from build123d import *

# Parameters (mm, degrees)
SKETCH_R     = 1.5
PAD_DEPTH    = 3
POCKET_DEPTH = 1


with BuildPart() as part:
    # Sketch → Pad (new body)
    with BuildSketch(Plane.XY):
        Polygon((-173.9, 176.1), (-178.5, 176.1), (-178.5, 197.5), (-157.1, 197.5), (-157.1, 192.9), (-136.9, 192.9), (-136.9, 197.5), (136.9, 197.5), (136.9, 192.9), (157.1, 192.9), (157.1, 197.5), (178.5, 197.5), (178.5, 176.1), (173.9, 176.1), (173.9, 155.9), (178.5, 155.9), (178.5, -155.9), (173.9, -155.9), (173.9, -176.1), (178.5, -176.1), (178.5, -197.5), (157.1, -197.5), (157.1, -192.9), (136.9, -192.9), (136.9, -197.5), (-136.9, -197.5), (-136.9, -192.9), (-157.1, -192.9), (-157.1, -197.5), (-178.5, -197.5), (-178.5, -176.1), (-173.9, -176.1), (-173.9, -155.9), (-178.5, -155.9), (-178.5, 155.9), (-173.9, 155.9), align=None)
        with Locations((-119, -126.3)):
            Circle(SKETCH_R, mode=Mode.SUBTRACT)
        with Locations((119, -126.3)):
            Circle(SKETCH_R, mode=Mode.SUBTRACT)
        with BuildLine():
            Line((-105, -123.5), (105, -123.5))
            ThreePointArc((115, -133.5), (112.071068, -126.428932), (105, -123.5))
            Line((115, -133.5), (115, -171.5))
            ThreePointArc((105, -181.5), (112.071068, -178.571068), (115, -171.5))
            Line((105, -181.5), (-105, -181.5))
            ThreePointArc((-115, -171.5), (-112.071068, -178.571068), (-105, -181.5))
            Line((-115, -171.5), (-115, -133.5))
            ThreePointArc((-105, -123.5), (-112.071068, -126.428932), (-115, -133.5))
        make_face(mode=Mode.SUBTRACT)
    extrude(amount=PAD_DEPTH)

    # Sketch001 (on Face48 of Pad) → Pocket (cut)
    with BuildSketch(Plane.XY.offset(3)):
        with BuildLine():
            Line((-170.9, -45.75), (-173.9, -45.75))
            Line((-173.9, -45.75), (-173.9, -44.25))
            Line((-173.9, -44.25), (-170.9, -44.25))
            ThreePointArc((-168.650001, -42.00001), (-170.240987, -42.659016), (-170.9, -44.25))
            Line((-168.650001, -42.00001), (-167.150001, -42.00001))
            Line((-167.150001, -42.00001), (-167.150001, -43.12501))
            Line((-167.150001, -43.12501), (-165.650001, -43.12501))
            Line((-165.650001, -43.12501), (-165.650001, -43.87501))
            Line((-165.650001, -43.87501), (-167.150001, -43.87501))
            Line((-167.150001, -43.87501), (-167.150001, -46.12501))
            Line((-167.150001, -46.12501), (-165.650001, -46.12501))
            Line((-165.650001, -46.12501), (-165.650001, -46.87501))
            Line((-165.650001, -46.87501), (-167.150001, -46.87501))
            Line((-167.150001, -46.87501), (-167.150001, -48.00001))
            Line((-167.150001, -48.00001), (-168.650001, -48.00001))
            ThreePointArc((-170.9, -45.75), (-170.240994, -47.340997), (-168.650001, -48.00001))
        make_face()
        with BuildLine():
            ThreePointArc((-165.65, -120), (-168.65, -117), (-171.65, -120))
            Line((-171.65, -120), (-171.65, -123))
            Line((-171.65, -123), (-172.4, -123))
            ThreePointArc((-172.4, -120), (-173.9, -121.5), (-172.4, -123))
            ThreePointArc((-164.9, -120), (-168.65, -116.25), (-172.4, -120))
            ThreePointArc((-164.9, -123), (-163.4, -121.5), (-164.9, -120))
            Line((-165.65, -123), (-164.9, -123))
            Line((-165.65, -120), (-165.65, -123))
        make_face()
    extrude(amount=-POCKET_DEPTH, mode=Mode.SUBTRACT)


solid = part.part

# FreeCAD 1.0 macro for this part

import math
import FreeCAD as App
import Part
import Sketcher
Q = App.Units.Quantity

doc = App.newDocument("Part")
body = doc.addObject("PartDesign::Body", "Body")

sketch1 = doc.addObject("Sketcher::SketchObject", "Sketch")
body.addObject(sketch1)
sketch1.AttachmentSupport = (doc.XY_Plane, [""])
sketch1.MapMode = "FlatFace"
sketch1.addGeometry(Part.LineSegment(App.Vector(-178.5, 176.1, 0), App.Vector(-173.9, 176.1, 0)), False)
sketch1.addGeometry(Part.LineSegment(App.Vector(-173.9, 176.1, 0), App.Vector(-173.9, 155.9, 0)), False)
sketch1.addGeometry(Part.LineSegment(App.Vector(-173.9, 155.9, 0), App.Vector(-178.5, 155.9, 0)), False)
sketch1.addGeometry(Part.LineSegment(App.Vector(-178.5, 155.9, 0), App.Vector(-178.5, -155.9, 0)), False)
sketch1.addGeometry(Part.LineSegment(App.Vector(-178.5, -155.9, 0), App.Vector(-173.9, -155.9, 0)), False)
sketch1.addGeometry(Part.LineSegment(App.Vector(-173.9, -155.9, 0), App.Vector(-173.9, -176.1, 0)), False)
sketch1.addGeometry(Part.LineSegment(App.Vector(-173.9, -176.1, 0), App.Vector(-178.5, -176.1, 0)), False)
sketch1.addGeometry(Part.LineSegment(App.Vector(-178.5, -176.1, 0), App.Vector(-178.5, -197.5, 0)), False)
sketch1.addGeometry(Part.LineSegment(App.Vector(-178.5, -197.5, 0), App.Vector(-157.1, -197.5, 0)), False)
sketch1.addGeometry(Part.LineSegment(App.Vector(-157.1, -197.5, 0), App.Vector(-157.1, -192.9, 0)), False)
sketch1.addGeometry(Part.LineSegment(App.Vector(-157.1, -192.9, 0), App.Vector(-136.9, -192.9, 0)), False)
sketch1.addGeometry(Part.LineSegment(App.Vector(-136.9, -192.9, 0), App.Vector(-136.9, -197.5, 0)), False)
sketch1.addGeometry(Part.LineSegment(App.Vector(-136.9, -197.5, 0), App.Vector(136.9, -197.5, 0)), False)
sketch1.addGeometry(Part.LineSegment(App.Vector(136.9, -197.5, 0), App.Vector(136.9, -192.9, 0)), False)
sketch1.addGeometry(Part.LineSegment(App.Vector(136.9, -192.9, 0), App.Vector(157.1, -192.9, 0)), False)
sketch1.addGeometry(Part.LineSegment(App.Vector(157.1, -192.9, 0), App.Vector(157.1, -197.5, 0)), False)
sketch1.addGeometry(Part.LineSegment(App.Vector(157.1, -197.5, 0), App.Vector(178.5, -197.5, 0)), False)
sketch1.addGeometry(Part.LineSegment(App.Vector(178.5, -197.5, 0), App.Vector(178.5, -176.1, 0)), False)
sketch1.addGeometry(Part.LineSegment(App.Vector(178.5, -176.1, 0), App.Vector(173.9, -176.1, 0)), False)
sketch1.addGeometry(Part.LineSegment(App.Vector(173.9, -176.1, 0), App.Vector(173.9, -155.9, 0)), False)
sketch1.addGeometry(Part.LineSegment(App.Vector(173.9, -155.9, 0), App.Vector(178.5, -155.9, 0)), False)
sketch1.addGeometry(Part.LineSegment(App.Vector(178.5, -155.9, 0), App.Vector(178.5, 155.9, 0)), False)
sketch1.addGeometry(Part.LineSegment(App.Vector(178.5, 155.9, 0), App.Vector(173.9, 155.9, 0)), False)
sketch1.addGeometry(Part.LineSegment(App.Vector(173.9, 155.9, 0), App.Vector(173.9, 176.1, 0)), False)
sketch1.addGeometry(Part.LineSegment(App.Vector(173.9, 176.1, 0), App.Vector(178.5, 176.1, 0)), False)
sketch1.addGeometry(Part.LineSegment(App.Vector(178.5, 176.1, 0), App.Vector(178.5, 197.5, 0)), False)
sketch1.addGeometry(Part.LineSegment(App.Vector(178.5, 197.5, 0), App.Vector(157.1, 197.5, 0)), False)
sketch1.addGeometry(Part.LineSegment(App.Vector(157.1, 197.5, 0), App.Vector(157.1, 192.9, 0)), False)
sketch1.addGeometry(Part.LineSegment(App.Vector(157.1, 192.9, 0), App.Vector(136.9, 192.9, 0)), False)
sketch1.addGeometry(Part.LineSegment(App.Vector(136.9, 192.9, 0), App.Vector(136.9, 197.5, 0)), False)
sketch1.addGeometry(Part.LineSegment(App.Vector(136.9, 197.5, 0), App.Vector(-136.9, 197.5, 0)), False)
sketch1.addGeometry(Part.LineSegment(App.Vector(-136.9, 197.5, 0), App.Vector(-136.9, 192.9, 0)), False)
sketch1.addGeometry(Part.LineSegment(App.Vector(-136.9, 192.9, 0), App.Vector(-157.1, 192.9, 0)), False)
sketch1.addGeometry(Part.LineSegment(App.Vector(-157.1, 192.9, 0), App.Vector(-157.1, 197.5, 0)), False)
sketch1.addGeometry(Part.LineSegment(App.Vector(-157.1, 197.5, 0), App.Vector(-178.5, 197.5, 0)), False)
sketch1.addGeometry(Part.LineSegment(App.Vector(-178.5, 197.5, 0), App.Vector(-178.5, 176.1, 0)), False)
sketch1.addGeometry(Part.Circle(App.Vector(119, -126.3, 0), App.Vector(0, 0, 1), 1.5), False)
sketch1.addGeometry(Part.LineSegment(App.Vector(-105, -123.5, 0), App.Vector(105, -123.5, 0)), False)
sketch1.addGeometry(Part.ArcOfCircle(Part.Circle(App.Vector(105, -133.5, 0), App.Vector(0, 0, 1), 10), math.radians(0), math.radians(90)), False)
sketch1.addGeometry(Part.LineSegment(App.Vector(115, -133.5, 0), App.Vector(115, -171.5, 0)), False)
sketch1.addGeometry(Part.ArcOfCircle(Part.Circle(App.Vector(105, -171.5, 0), App.Vector(0, 0, 1), 10), math.radians(-90), math.radians(0)), False)
sketch1.addGeometry(Part.LineSegment(App.Vector(105, -181.5, 0), App.Vector(-105, -181.5, 0)), False)
sketch1.addGeometry(Part.ArcOfCircle(Part.Circle(App.Vector(-105, -171.5, 0), App.Vector(0, 0, 1), 10), math.radians(180), math.radians(270)), False)
sketch1.addGeometry(Part.LineSegment(App.Vector(-115, -171.5, 0), App.Vector(-115, -133.5, 0)), False)
sketch1.addGeometry(Part.ArcOfCircle(Part.Circle(App.Vector(-105, -133.5, 0), App.Vector(0, 0, 1), 10), math.radians(90), math.radians(180)), False)
sketch1.addGeometry(Part.Circle(App.Vector(-119, -126.3, 0), App.Vector(0, 0, 1), 1.5), False)
sketch1.addConstraint(Sketcher.Constraint("Coincident", 0, 2, 1, 1))
sketch1.addConstraint(Sketcher.Constraint("Coincident", 1, 2, 2, 1))
sketch1.addConstraint(Sketcher.Constraint("Coincident", 2, 2, 3, 1))
sketch1.addConstraint(Sketcher.Constraint("Coincident", 3, 2, 4, 1))
sketch1.addConstraint(Sketcher.Constraint("Coincident", 4, 2, 5, 1))
sketch1.addConstraint(Sketcher.Constraint("Coincident", 5, 2, 6, 1))
sketch1.addConstraint(Sketcher.Constraint("Coincident", 6, 2, 7, 1))
sketch1.addConstraint(Sketcher.Constraint("Coincident", 7, 2, 8, 1))
sketch1.addConstraint(Sketcher.Constraint("Coincident", 8, 2, 9, 1))
sketch1.addConstraint(Sketcher.Constraint("Coincident", 9, 2, 10, 1))
sketch1.addConstraint(Sketcher.Constraint("Coincident", 10, 2, 11, 1))
sketch1.addConstraint(Sketcher.Constraint("Coincident", 11, 2, 12, 1))
sketch1.addConstraint(Sketcher.Constraint("Coincident", 12, 2, 13, 1))
sketch1.addConstraint(Sketcher.Constraint("Coincident", 13, 2, 14, 1))
sketch1.addConstraint(Sketcher.Constraint("Coincident", 14, 2, 15, 1))
sketch1.addConstraint(Sketcher.Constraint("Coincident", 15, 2, 16, 1))
sketch1.addConstraint(Sketcher.Constraint("Coincident", 16, 2, 17, 1))
sketch1.addConstraint(Sketcher.Constraint("Coincident", 17, 2, 18, 1))
sketch1.addConstraint(Sketcher.Constraint("Coincident", 18, 2, 19, 1))
sketch1.addConstraint(Sketcher.Constraint("Coincident", 19, 2, 20, 1))
sketch1.addConstraint(Sketcher.Constraint("Coincident", 20, 2, 21, 1))
sketch1.addConstraint(Sketcher.Constraint("Coincident", 21, 2, 22, 1))
sketch1.addConstraint(Sketcher.Constraint("Coincident", 22, 2, 23, 1))
sketch1.addConstraint(Sketcher.Constraint("Coincident", 23, 2, 24, 1))
sketch1.addConstraint(Sketcher.Constraint("Coincident", 24, 2, 25, 1))
sketch1.addConstraint(Sketcher.Constraint("Coincident", 25, 2, 26, 1))
sketch1.addConstraint(Sketcher.Constraint("Coincident", 26, 2, 27, 1))
sketch1.addConstraint(Sketcher.Constraint("Coincident", 27, 2, 28, 1))
sketch1.addConstraint(Sketcher.Constraint("Coincident", 28, 2, 29, 1))
sketch1.addConstraint(Sketcher.Constraint("Coincident", 29, 2, 30, 1))
sketch1.addConstraint(Sketcher.Constraint("Coincident", 30, 2, 31, 1))
sketch1.addConstraint(Sketcher.Constraint("Coincident", 31, 2, 32, 1))
sketch1.addConstraint(Sketcher.Constraint("Coincident", 32, 2, 33, 1))
sketch1.addConstraint(Sketcher.Constraint("Coincident", 33, 2, 34, 1))
sketch1.addConstraint(Sketcher.Constraint("Coincident", 34, 2, 35, 1))
sketch1.addConstraint(Sketcher.Constraint("Coincident", 35, 2, 0, 1))
sketch1.addConstraint(Sketcher.Constraint("Tangent", 37, 2, 38, 2))
sketch1.addConstraint(Sketcher.Constraint("Tangent", 38, 1, 39, 1))
sketch1.addConstraint(Sketcher.Constraint("Tangent", 39, 2, 40, 2))
sketch1.addConstraint(Sketcher.Constraint("Tangent", 40, 1, 41, 1))
sketch1.addConstraint(Sketcher.Constraint("Tangent", 41, 2, 42, 2))
sketch1.addConstraint(Sketcher.Constraint("Tangent", 42, 1, 43, 1))
sketch1.addConstraint(Sketcher.Constraint("Tangent", 43, 2, 44, 2))
sketch1.addConstraint(Sketcher.Constraint("Tangent", 44, 1, 37, 1))
sketch1.addConstraint(Sketcher.Constraint("Horizontal", 0))
sketch1.addConstraint(Sketcher.Constraint("Vertical", 1))
sketch1.addConstraint(Sketcher.Constraint("Horizontal", 2))
sketch1.addConstraint(Sketcher.Constraint("Vertical", 3))
sketch1.addConstraint(Sketcher.Constraint("Horizontal", 4))
sketch1.addConstraint(Sketcher.Constraint("Vertical", 5))
sketch1.addConstraint(Sketcher.Constraint("Horizontal", 6))
sketch1.addConstraint(Sketcher.Constraint("Vertical", 7))
sketch1.addConstraint(Sketcher.Constraint("Horizontal", 8))
sketch1.addConstraint(Sketcher.Constraint("Vertical", 9))
sketch1.addConstraint(Sketcher.Constraint("Horizontal", 10))
sketch1.addConstraint(Sketcher.Constraint("Vertical", 11))
sketch1.addConstraint(Sketcher.Constraint("Horizontal", 12))
sketch1.addConstraint(Sketcher.Constraint("Vertical", 13))
sketch1.addConstraint(Sketcher.Constraint("Horizontal", 14))
sketch1.addConstraint(Sketcher.Constraint("Vertical", 15))
sketch1.addConstraint(Sketcher.Constraint("Horizontal", 16))
sketch1.addConstraint(Sketcher.Constraint("Vertical", 17))
sketch1.addConstraint(Sketcher.Constraint("Horizontal", 18))
sketch1.addConstraint(Sketcher.Constraint("Vertical", 19))
sketch1.addConstraint(Sketcher.Constraint("Horizontal", 20))
sketch1.addConstraint(Sketcher.Constraint("Vertical", 21))
sketch1.addConstraint(Sketcher.Constraint("Horizontal", 22))
sketch1.addConstraint(Sketcher.Constraint("Vertical", 23))
sketch1.addConstraint(Sketcher.Constraint("Horizontal", 24))
sketch1.addConstraint(Sketcher.Constraint("Vertical", 25))
sketch1.addConstraint(Sketcher.Constraint("Horizontal", 26))
sketch1.addConstraint(Sketcher.Constraint("Vertical", 27))
sketch1.addConstraint(Sketcher.Constraint("Horizontal", 28))
sketch1.addConstraint(Sketcher.Constraint("Vertical", 29))
sketch1.addConstraint(Sketcher.Constraint("Horizontal", 30))
sketch1.addConstraint(Sketcher.Constraint("Vertical", 31))
sketch1.addConstraint(Sketcher.Constraint("Horizontal", 32))
sketch1.addConstraint(Sketcher.Constraint("Vertical", 33))
sketch1.addConstraint(Sketcher.Constraint("Horizontal", 34))
sketch1.addConstraint(Sketcher.Constraint("Vertical", 35))
sketch1.addConstraint(Sketcher.Constraint("Horizontal", 37))
sketch1.addConstraint(Sketcher.Constraint("Vertical", 39))
sketch1.addConstraint(Sketcher.Constraint("Horizontal", 41))
sketch1.addConstraint(Sketcher.Constraint("Vertical", 43))
sketch1.addConstraint(Sketcher.Constraint("Equal", 38, 40))
sketch1.addConstraint(Sketcher.Constraint("Equal", 40, 42))
sketch1.addConstraint(Sketcher.Constraint("Equal", 42, 44))
sketch1.addConstraint(Sketcher.Constraint("Equal", 36, 45))
sketch1.addConstraint(Sketcher.Constraint("Symmetric", 0, 2, 18, 2, -1, 1))
sketch1.addConstraint(Sketcher.Constraint("Symmetric", 2, 2, 20, 2, -1, 1))
sketch1.addConstraint(Sketcher.Constraint("Symmetric", 4, 2, 22, 2, -1, 1))
sketch1.addConstraint(Sketcher.Constraint("Symmetric", 6, 2, 24, 2, -1, 1))
sketch1.addConstraint(Sketcher.Constraint("Symmetric", 8, 2, 26, 2, -1, 1))
sketch1.addConstraint(Sketcher.Constraint("Symmetric", 10, 2, 28, 2, -1, 1))
sketch1.addConstraint(Sketcher.Constraint("Symmetric", 12, 2, 30, 2, -1, 1))
sketch1.addConstraint(Sketcher.Constraint("Symmetric", 14, 2, 32, 2, -1, 1))
sketch1.addConstraint(Sketcher.Constraint("Symmetric", 16, 2, 34, 2, -1, 1))
sketch1.addConstraint(Sketcher.Constraint("Symmetric", 36, 3, 45, 3, -2))
sketch1.addConstraint(Sketcher.Constraint("Symmetric", 10, 2, 13, 2, -2))
sketch1.addConstraint(Sketcher.Constraint("Symmetric", 8, 2, 15, 2, -2))
sketch1.addConstraint(Sketcher.Constraint("Symmetric", 6, 2, 17, 2, -2))
sketch1.addConstraint(Sketcher.Constraint("Symmetric", 4, 2, 19, 2, -2))
sketch1.addConstraint(Sketcher.Constraint("Horizontal", 8, 2, 11, 2))
sketch1.addConstraint(Sketcher.Constraint("Vertical", 3, 2, 6, 2))
sketch1.addConstraint(Sketcher.Constraint("Equal", 32, 1))
sketch1.addConstraint(Sketcher.Constraint("Equal", 34, 7))
sketch1.addConstraint(Sketcher.Constraint("Equal", 24, 9))
sketch1.addConstraint(Sketcher.Constraint("Diameter", 36, Q("3 mm")))
sketch1.addConstraint(Sketcher.Constraint("Radius", 38, Q("9.999999 mm")))
sketch1.addConstraint(Sketcher.Constraint("DistanceX", 37, 1, 37, 2, Q("210 mm")))
sketch1.addConstraint(Sketcher.Constraint("DistanceY", 39, 2, 39, 1, Q("38 mm")))
sketch1.addConstraint(Sketcher.Constraint("DistanceX", 0, 1, 0, 2, Q("4.6 mm")))
sketch1.addConstraint(Sketcher.Constraint("DistanceX", 8, 1, 8, 2, Q("21.4 mm")))
sketch1.addConstraint(Sketcher.Constraint("DistanceX", 10, 1, 10, 2, Q("20.2 mm")))
sketch1.addConstraint(Sketcher.Constraint("DistanceX", 12, 1, 12, 2, Q("273.8 mm")))
sketch1.addConstraint(Sketcher.Constraint("DistanceY", 3, 2, 3, 1, Q("311.8 mm")))
sketch1.addConstraint(Sketcher.Constraint("DistanceX", -1, 1, 36, 3, Q("119 mm")))
sketch1.addConstraint(Sketcher.Constraint("DistanceX", -1, 1, 38, 3, Q("105.000001 mm")))
sketch1.addConstraint(Sketcher.Constraint("DistanceY", 7, 2, 42, 3, Q("25.999999 mm")))
sketch1.addConstraint(Sketcher.Constraint("DistanceY", 36, 3, -1, 1, Q("126.3 mm")))
pad1 = doc.addObject("PartDesign::Pad", "Pad")
body.addObject(pad1)
pad1.Profile = sketch1
pad1.Length = 3

sketch2 = doc.addObject("Sketcher::SketchObject", "Sketch001")
body.addObject(sketch2)
sketch2.AttachmentSupport = (doc.XY_Plane, [""])
sketch2.MapMode = "FlatFace"
sketch2.AttachmentOffset = App.Placement(App.Vector(0, 0, 3), App.Rotation())
sketch2.addGeometry(Part.LineSegment(App.Vector(-173.9, -45.8, 0), App.Vector(-170.9, -45.8, 0)), False)
sketch2.addGeometry(Part.ArcOfCircle(Part.Circle(App.Vector(-168.7, -45.8, 0), App.Vector(0, 0, 1), 2.2), math.radians(180), math.radians(270)), False)
sketch2.addGeometry(Part.LineSegment(App.Vector(-168.7, -48, 0), App.Vector(-167.2, -48, 0)), False)
sketch2.addGeometry(Part.LineSegment(App.Vector(-167.2, -48, 0), App.Vector(-167.2, -46.9, 0)), False)
sketch2.addGeometry(Part.LineSegment(App.Vector(-167.2, -46.9, 0), App.Vector(-165.7, -46.9, 0)), False)
sketch2.addGeometry(Part.LineSegment(App.Vector(-165.7, -46.9, 0), App.Vector(-165.7, -46.1, 0)), False)
sketch2.addGeometry(Part.LineSegment(App.Vector(-165.7, -46.1, 0), App.Vector(-167.2, -46.1, 0)), False)
sketch2.addGeometry(Part.LineSegment(App.Vector(-167.2, -46.1, 0), App.Vector(-167.2, -43.9, 0)), False)
sketch2.addGeometry(Part.LineSegment(App.Vector(-167.2, -43.9, 0), App.Vector(-165.7, -43.9, 0)), False)
sketch2.addGeometry(Part.LineSegment(App.Vector(-165.7, -43.9, 0), App.Vector(-165.7, -43.1, 0)), False)
sketch2.addGeometry(Part.LineSegment(App.Vector(-165.7, -43.1, 0), App.Vector(-167.2, -43.1, 0)), False)
sketch2.addGeometry(Part.LineSegment(App.Vector(-167.2, -43.1, 0), App.Vector(-167.2, -42, 0)), False)
sketch2.addGeometry(Part.LineSegment(App.Vector(-167.2, -42, 0), App.Vector(-168.7, -42, 0)), False)
sketch2.addGeometry(Part.ArcOfCircle(Part.Circle(App.Vector(-168.7, -44.3, 0), App.Vector(0, 0, 1), 2.2), math.radians(90), math.radians(180)), False)
sketch2.addGeometry(Part.LineSegment(App.Vector(-170.9, -44.2, 0), App.Vector(-173.9, -44.2, 0)), False)
sketch2.addGeometry(Part.LineSegment(App.Vector(-173.9, -44.2, 0), App.Vector(-173.9, -45.8, 0)), False)
sketch2.addGeometry(Part.ArcOfCircle(Part.Circle(App.Vector(-168.7, -120, 0), App.Vector(0, 0, 1), 3), math.radians(0), math.radians(180)), False)
sketch2.addGeometry(Part.LineSegment(App.Vector(-165.7, -120, 0), App.Vector(-165.7, -123, 0)), False)
sketch2.addGeometry(Part.LineSegment(App.Vector(-165.7, -123, 0), App.Vector(-164.9, -123, 0)), False)
sketch2.addGeometry(Part.ArcOfCircle(Part.Circle(App.Vector(-164.9, -121.5, 0), App.Vector(0, 0, 1), 1.5), math.radians(-90), math.radians(90)), False)
sketch2.addGeometry(Part.ArcOfCircle(Part.Circle(App.Vector(-168.7, -120, 0), App.Vector(0, 0, 1), 3.8), math.radians(0), math.radians(180)), False)
sketch2.addGeometry(Part.ArcOfCircle(Part.Circle(App.Vector(-172.4, -121.5, 0), App.Vector(0, 0, 1), 1.5), math.radians(90), math.radians(270)), False)
sketch2.addGeometry(Part.LineSegment(App.Vector(-172.4, -123, 0), App.Vector(-171.7, -123, 0)), False)
sketch2.addGeometry(Part.LineSegment(App.Vector(-171.7, -123, 0), App.Vector(-171.7, -120, 0)), False)
sketch2.addConstraint(Sketcher.Constraint("Coincident", 0, 2, 1, 1))
sketch2.addConstraint(Sketcher.Constraint("Tangent", 1, 2, 2, 1))
sketch2.addConstraint(Sketcher.Constraint("Coincident", 2, 2, 3, 1))
sketch2.addConstraint(Sketcher.Constraint("Coincident", 3, 2, 4, 1))
sketch2.addConstraint(Sketcher.Constraint("Coincident", 4, 2, 5, 1))
sketch2.addConstraint(Sketcher.Constraint("Coincident", 5, 2, 6, 1))
sketch2.addConstraint(Sketcher.Constraint("Coincident", 6, 2, 7, 1))
sketch2.addConstraint(Sketcher.Constraint("Coincident", 7, 2, 8, 1))
sketch2.addConstraint(Sketcher.Constraint("Coincident", 8, 2, 9, 1))
sketch2.addConstraint(Sketcher.Constraint("Coincident", 9, 2, 10, 1))
sketch2.addConstraint(Sketcher.Constraint("Coincident", 10, 2, 11, 1))
sketch2.addConstraint(Sketcher.Constraint("Coincident", 11, 2, 12, 1))
sketch2.addConstraint(Sketcher.Constraint("Tangent", 12, 2, 13, 1))
sketch2.addConstraint(Sketcher.Constraint("Coincident", 13, 2, 14, 1))
sketch2.addConstraint(Sketcher.Constraint("Coincident", 14, 2, 15, 1))
sketch2.addConstraint(Sketcher.Constraint("Coincident", 15, 2, 0, 1))
sketch2.addConstraint(Sketcher.Constraint("Tangent", 16, 1, 17, 1))
sketch2.addConstraint(Sketcher.Constraint("Coincident", 17, 2, 18, 1))
sketch2.addConstraint(Sketcher.Constraint("Tangent", 18, 2, 19, 1))
sketch2.addConstraint(Sketcher.Constraint("Coincident", 19, 2, 20, 1))
sketch2.addConstraint(Sketcher.Constraint("Coincident", 20, 2, 21, 1))
sketch2.addConstraint(Sketcher.Constraint("Tangent", 21, 2, 22, 1))
sketch2.addConstraint(Sketcher.Constraint("Coincident", 22, 2, 23, 1))
sketch2.addConstraint(Sketcher.Constraint("Tangent", 23, 2, 16, 2))
sketch2.addConstraint(Sketcher.Constraint("Horizontal", 0))
sketch2.addConstraint(Sketcher.Constraint("Horizontal", 2))
sketch2.addConstraint(Sketcher.Constraint("Vertical", 3))
sketch2.addConstraint(Sketcher.Constraint("Horizontal", 4))
sketch2.addConstraint(Sketcher.Constraint("Vertical", 5))
sketch2.addConstraint(Sketcher.Constraint("Horizontal", 6))
sketch2.addConstraint(Sketcher.Constraint("Vertical", 7))
sketch2.addConstraint(Sketcher.Constraint("Horizontal", 8))
sketch2.addConstraint(Sketcher.Constraint("Vertical", 9))
sketch2.addConstraint(Sketcher.Constraint("Horizontal", 10))
sketch2.addConstraint(Sketcher.Constraint("Vertical", 11))
sketch2.addConstraint(Sketcher.Constraint("Horizontal", 12))
sketch2.addConstraint(Sketcher.Constraint("Horizontal", 14))
sketch2.addConstraint(Sketcher.Constraint("Vertical", 15))
sketch2.addConstraint(Sketcher.Constraint("Vertical", 17))
sketch2.addConstraint(Sketcher.Constraint("Horizontal", 18))
sketch2.addConstraint(Sketcher.Constraint("Horizontal", 22))
sketch2.addConstraint(Sketcher.Constraint("Vertical", 23))
sketch2.addConstraint(Sketcher.Constraint("Coincident", 20, 3, 16, 3))
sketch2.addConstraint(Sketcher.Constraint("Equal", 1, 13))
sketch2.addConstraint(Sketcher.Constraint("Equal", 19, 21))
sketch2.addConstraint(Sketcher.Constraint("Horizontal", 19, 3, 21, 3))
sketch2.addConstraint(Sketcher.Constraint("Horizontal", 16, 1, 19, 2))
sketch2.addConstraint(Sketcher.Constraint("Vertical", 1, 3, 13, 3))
sketch2.addConstraint(Sketcher.Constraint("Vertical", 13, 3, 16, 3))
sketch2.addConstraint(Sketcher.Constraint("Vertical", 3, 2, 6, 2))
sketch2.addConstraint(Sketcher.Constraint("Vertical", 5, 2, 8, 2))
sketch2.addConstraint(Sketcher.Constraint("Vertical", 7, 2, 10, 2))
sketch2.addConstraint(Sketcher.Constraint("Vertical", 9, 2, 16, 1))
sketch2.addConstraint(Sketcher.Constraint("Vertical", 18, 2, 19, 2))
sketch2.addConstraint(Sketcher.Constraint("Vertical", 21, 3, 20, 2))
sketch2.addConstraint(Sketcher.Constraint("Equal", 2, 4))
sketch2.addConstraint(Sketcher.Constraint("Equal", 22, 5))
sketch2.addConstraint(Sketcher.Constraint("Equal", 5, 9))
sketch2.addConstraint(Sketcher.Constraint("Equal", 3, 11))
sketch2.addConstraint(Sketcher.Constraint("Equal", 12, 15))
sketch2.addConstraint(Sketcher.Constraint("Equal", 14, 17))
sketch2.addConstraint(Sketcher.Constraint("Radius", 16, Q("3 mm")))
sketch2.addConstraint(Sketcher.Constraint("Radius", 19, Q("1.5 mm")))
sketch2.addConstraint(Sketcher.Constraint("Radius", 1, Q("2.249999 mm")))
sketch2.addConstraint(Sketcher.Constraint("Radius", 20, Q("3.75 mm")))
sketch2.addConstraint(Sketcher.Constraint("DistanceY", 16, 3, -1, 1, Q("120 mm")))
sketch2.addConstraint(Sketcher.Constraint("DistanceY", 3, 2, 7, 2, Q("3 mm")))
sketch2.addConstraint(Sketcher.Constraint("DistanceX", 19, 3, -1, 1, Q("164.9 mm")))
sketch2.addConstraint(Sketcher.Constraint("DistanceY", 1, 3, 13, 3, Q("1.500002 mm")))
sketch2.addConstraint(Sketcher.Constraint("DistanceY", 0, 2, -1, 1, Q("45.75 mm")))
sketch2.addConstraint(Sketcher.Constraint("DistanceY", 1, 3, -1, 1, Q("45.750011 mm")))
pocket1 = doc.addObject("PartDesign::Pocket", "Pocket")
body.addObject(pocket1)
pocket1.Profile = sketch2
pocket1.Length = 1

doc.recompute()
